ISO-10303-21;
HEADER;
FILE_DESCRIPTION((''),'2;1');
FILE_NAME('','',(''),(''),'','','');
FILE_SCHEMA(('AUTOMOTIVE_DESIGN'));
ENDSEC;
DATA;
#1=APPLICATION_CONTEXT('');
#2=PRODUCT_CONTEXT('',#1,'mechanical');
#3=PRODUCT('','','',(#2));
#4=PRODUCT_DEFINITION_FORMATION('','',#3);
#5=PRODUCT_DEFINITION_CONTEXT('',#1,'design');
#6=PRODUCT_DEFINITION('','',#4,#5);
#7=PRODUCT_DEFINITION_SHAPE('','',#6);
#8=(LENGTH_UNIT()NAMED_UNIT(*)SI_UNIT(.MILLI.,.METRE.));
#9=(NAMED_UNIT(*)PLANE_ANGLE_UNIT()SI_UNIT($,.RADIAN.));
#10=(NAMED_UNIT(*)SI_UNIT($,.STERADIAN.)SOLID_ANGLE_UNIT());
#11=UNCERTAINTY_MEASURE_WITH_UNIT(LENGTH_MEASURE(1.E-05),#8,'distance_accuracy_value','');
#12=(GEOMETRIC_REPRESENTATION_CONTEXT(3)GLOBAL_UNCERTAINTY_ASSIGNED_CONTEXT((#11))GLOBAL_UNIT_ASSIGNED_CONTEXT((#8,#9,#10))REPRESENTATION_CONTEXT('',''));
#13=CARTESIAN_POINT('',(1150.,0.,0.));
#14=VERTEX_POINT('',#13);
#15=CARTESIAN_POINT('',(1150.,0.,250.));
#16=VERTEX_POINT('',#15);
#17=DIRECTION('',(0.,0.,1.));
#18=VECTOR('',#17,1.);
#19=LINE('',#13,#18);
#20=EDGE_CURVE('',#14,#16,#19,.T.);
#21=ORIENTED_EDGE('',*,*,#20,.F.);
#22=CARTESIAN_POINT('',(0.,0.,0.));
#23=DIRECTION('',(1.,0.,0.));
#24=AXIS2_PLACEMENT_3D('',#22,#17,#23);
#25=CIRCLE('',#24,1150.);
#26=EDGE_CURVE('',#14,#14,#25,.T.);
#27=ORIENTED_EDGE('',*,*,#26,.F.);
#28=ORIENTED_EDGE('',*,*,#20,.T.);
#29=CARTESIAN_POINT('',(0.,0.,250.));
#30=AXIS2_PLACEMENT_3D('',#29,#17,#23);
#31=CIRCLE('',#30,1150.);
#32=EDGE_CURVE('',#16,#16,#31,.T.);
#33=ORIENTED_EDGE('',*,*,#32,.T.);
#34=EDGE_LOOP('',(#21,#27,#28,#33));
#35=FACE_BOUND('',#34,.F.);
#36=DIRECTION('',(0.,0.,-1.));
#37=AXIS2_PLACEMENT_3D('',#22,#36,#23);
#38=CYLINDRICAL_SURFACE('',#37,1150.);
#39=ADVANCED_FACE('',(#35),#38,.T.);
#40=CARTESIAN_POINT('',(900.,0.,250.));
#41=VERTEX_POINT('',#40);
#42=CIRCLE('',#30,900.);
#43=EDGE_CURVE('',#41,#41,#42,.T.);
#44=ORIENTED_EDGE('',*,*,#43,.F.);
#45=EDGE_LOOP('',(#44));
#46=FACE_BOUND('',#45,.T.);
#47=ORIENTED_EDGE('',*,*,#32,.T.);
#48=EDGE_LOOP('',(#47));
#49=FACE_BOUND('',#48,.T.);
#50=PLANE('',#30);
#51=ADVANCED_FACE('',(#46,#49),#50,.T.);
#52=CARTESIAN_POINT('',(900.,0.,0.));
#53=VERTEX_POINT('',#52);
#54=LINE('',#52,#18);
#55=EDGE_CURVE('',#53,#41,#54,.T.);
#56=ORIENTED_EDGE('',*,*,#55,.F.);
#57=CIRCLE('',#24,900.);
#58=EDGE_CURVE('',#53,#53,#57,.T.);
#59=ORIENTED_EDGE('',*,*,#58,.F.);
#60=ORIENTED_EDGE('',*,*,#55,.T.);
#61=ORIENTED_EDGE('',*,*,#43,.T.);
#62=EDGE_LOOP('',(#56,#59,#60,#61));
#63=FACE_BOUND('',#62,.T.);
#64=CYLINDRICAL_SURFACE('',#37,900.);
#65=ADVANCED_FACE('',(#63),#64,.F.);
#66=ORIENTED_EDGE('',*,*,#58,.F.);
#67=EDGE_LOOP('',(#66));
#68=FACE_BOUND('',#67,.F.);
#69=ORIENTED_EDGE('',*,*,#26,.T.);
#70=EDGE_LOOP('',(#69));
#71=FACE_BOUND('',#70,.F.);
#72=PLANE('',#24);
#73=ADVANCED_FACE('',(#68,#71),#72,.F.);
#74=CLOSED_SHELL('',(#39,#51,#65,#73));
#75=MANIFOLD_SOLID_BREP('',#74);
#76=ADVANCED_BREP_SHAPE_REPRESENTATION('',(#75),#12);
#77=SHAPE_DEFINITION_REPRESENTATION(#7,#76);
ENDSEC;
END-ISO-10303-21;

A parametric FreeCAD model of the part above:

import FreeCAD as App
import Part
import Sketcher
Q = App.Units.Quantity

doc = App.newDocument("Part")
body = doc.addObject("PartDesign::Body", "Body")

# Sketch on XY plane
sketch1 = body.newObject("Sketcher::SketchObject", "Sketch")
sketch1.AttachmentSupport = (doc.getObject("XY_Plane"), [""])
sketch1.MapMode = "FlatFace"
sketch1.addGeometry(Part.Circle(App.Vector(0, 0, 0), App.Vector(0, 0, 1), 900), False)
sketch1.addConstraint([
    Sketcher.Constraint("Coincident", 0, 3, -1, 1),
    Sketcher.Constraint("Diameter", 0, Q("1800 mm")),
])
pad1 = body.newObject("PartDesign::Pad", "Pad")
pad1.Profile = sketch1
pad1.Length = 250
body2 = doc.addObject("PartDesign::Body", "Body001")

# Sketch on XY plane
sketch2 = body2.newObject("Sketcher::SketchObject", "Sketch001")
sketch2.AttachmentSupport = (doc.getObject("XY_Plane001"), [""])
sketch2.MapMode = "FlatFace"
sketch2.addGeometry(Part.Circle(App.Vector(0, 0, 0), App.Vector(0, 0, 1), 1150), False)
sketch2.addConstraint([
    Sketcher.Constraint("Coincident", 0, 3, -1, 1),
    Sketcher.Constraint("Diameter", 0, Q("2300 mm")),
])
pad2 = body2.newObject("PartDesign::Pad", "Pad001")
pad2.Profile = sketch2
pad2.Length = 250
doc.recompute()

boolean = body2.newObject("PartDesign::Boolean", "Boolean")
boolean.Type = "Cut"
boolean.addObjects([body])

doc.recompute()
